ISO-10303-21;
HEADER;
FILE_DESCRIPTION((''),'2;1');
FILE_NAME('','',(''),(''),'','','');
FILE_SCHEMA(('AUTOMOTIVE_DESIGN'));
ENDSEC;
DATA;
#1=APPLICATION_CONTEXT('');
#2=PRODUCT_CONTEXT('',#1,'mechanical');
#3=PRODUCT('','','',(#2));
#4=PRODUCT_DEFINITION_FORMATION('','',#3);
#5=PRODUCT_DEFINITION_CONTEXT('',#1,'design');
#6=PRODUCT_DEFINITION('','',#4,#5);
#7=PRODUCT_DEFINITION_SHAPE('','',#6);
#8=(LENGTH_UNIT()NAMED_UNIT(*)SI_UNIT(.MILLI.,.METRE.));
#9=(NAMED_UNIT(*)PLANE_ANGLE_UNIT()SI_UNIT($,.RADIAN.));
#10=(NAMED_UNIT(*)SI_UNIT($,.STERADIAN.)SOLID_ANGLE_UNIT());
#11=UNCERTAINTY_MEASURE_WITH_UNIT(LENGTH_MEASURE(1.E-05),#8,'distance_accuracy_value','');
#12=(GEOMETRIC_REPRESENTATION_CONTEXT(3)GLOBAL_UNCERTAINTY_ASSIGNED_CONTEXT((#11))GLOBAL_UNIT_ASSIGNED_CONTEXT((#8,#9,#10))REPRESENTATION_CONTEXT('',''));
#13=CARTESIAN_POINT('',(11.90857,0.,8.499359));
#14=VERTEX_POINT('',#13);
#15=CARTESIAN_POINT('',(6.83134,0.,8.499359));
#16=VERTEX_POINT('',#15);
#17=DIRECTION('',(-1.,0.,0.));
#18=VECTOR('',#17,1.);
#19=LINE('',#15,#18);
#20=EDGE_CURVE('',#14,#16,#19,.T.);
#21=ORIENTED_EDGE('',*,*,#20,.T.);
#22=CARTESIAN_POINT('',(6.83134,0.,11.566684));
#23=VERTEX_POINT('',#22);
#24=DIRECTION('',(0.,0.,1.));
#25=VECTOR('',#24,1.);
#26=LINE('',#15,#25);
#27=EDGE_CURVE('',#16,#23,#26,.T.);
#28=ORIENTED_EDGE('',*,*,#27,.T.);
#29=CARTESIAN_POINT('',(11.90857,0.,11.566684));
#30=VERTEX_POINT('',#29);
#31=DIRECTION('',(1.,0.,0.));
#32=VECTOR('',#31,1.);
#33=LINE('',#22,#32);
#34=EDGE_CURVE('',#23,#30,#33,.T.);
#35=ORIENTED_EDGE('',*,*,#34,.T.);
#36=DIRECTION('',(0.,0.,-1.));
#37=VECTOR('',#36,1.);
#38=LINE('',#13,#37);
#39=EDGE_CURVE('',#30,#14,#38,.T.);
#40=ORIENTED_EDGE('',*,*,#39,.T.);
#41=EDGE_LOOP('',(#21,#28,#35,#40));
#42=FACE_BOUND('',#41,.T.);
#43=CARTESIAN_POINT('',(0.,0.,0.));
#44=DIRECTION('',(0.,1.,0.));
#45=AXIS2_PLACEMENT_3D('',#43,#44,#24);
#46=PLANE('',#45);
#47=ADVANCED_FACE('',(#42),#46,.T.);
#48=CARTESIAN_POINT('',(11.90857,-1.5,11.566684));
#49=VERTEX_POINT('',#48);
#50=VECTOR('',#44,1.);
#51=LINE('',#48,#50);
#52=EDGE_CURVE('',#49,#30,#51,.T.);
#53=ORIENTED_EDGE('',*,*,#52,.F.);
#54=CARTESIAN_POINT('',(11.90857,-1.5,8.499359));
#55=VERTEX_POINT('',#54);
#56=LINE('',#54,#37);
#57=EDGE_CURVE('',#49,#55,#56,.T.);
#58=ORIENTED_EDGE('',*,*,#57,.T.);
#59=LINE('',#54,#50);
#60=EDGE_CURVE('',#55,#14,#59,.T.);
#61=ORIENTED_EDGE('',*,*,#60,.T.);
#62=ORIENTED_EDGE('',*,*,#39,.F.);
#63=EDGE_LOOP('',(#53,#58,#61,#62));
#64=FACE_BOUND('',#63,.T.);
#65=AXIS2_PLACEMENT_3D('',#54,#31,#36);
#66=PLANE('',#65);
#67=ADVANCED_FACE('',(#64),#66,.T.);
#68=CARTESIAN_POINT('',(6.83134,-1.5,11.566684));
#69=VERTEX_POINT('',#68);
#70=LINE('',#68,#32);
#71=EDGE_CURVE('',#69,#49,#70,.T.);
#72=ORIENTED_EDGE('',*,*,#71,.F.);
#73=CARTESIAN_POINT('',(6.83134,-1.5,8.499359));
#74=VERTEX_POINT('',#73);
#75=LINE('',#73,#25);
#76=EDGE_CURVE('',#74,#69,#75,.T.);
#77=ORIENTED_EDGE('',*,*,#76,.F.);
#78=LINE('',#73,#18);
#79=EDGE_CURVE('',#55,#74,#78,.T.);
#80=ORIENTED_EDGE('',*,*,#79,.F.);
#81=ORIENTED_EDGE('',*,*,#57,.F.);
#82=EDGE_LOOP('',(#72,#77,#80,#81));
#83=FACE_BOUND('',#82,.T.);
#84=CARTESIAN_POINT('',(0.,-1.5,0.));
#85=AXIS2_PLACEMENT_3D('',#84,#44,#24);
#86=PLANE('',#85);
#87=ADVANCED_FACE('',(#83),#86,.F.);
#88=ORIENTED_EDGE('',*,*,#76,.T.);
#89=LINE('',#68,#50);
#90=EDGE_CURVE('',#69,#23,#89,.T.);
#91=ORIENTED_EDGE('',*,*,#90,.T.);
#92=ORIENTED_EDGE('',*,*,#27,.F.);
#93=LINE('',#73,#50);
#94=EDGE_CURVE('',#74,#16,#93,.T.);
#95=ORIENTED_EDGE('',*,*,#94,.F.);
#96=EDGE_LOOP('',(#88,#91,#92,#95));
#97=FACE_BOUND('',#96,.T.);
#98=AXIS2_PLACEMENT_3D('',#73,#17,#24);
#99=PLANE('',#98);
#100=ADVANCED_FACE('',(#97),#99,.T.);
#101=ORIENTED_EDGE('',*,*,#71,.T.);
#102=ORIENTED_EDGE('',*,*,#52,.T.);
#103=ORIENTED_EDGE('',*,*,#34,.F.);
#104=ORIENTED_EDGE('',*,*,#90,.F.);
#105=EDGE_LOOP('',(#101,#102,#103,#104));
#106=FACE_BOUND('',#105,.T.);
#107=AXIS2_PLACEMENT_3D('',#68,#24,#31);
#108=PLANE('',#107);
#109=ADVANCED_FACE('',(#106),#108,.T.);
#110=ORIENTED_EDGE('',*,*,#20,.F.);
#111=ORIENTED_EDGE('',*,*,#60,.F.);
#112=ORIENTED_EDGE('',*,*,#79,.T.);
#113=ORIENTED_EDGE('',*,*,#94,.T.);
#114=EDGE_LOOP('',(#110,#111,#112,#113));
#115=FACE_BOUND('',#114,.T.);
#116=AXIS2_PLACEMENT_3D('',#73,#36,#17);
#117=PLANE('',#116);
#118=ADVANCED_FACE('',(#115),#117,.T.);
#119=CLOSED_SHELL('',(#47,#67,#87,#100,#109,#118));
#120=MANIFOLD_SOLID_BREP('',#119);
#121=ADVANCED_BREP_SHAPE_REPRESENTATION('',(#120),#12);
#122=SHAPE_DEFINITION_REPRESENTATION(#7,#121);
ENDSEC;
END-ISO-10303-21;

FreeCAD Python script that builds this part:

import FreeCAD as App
import Part
import Sketcher

V = App.Vector
Q = App.Units.Quantity

doc = App.newDocument("Part")
body = doc.addObject("PartDesign::Body", "Body")

sketch1 = doc.addObject("Sketcher::SketchObject", "Sketch")
body.addObject(sketch1)
sketch1.AttachmentSupport = (doc.XZ_Plane, [""])
sketch1.MapMode = "FlatFace"
sketch1.addGeometry([
    Part.LineSegment(V(0, 0, 0), V(0, 13, 0)),
    Part.LineSegment(V(0, 13, 0), V(18, 13, 0)),
    Part.LineSegment(V(18, 13, 0), V(18, 0, 0)),
    Part.LineSegment(V(18, 0, 0), V(0, 0, 0)),
    Part.Circle(V(2.6, 10.4, 0), V(0, 0, 1), 1.5),
    Part.Circle(V(1.4, 1.4, 0), V(0, 0, 1), 0.5),
    Part.Circle(V(3.9, 1.4, 0), V(0, 0, 1), 0.5),
    Part.Circle(V(6.5, 1.4, 0), V(0, 0, 1), 0.5),
    Part.Circle(V(9, 1.4, 0), V(0, 0, 1), 0.5),
    Part.Circle(V(11.5, 1.4, 0), V(0, 0, 1), 0.5),
    Part.Circle(V(14.1, 1.4, 0), V(0, 0, 1), 0.5),
    Part.Circle(V(16.6, 1.4, 0), V(0, 0, 1), 0.5),
], False)
sketch1.addConstraint([
    Sketcher.Constraint("Coincident", 0, 2, 1, 1),
    Sketcher.Constraint("Coincident", 1, 2, 2, 1),
    Sketcher.Constraint("Coincident", 2, 2, 3, 1),
    Sketcher.Constraint("Coincident", 3, 2, 0, 1),
    Sketcher.Constraint("Vertical", 0),
    Sketcher.Constraint("Horizontal", 1),
    Sketcher.Constraint("Vertical", 2),
    Sketcher.Constraint("Horizontal", 3),
    Sketcher.Constraint("Coincident", 3, 2, -1, 1),
    Sketcher.Constraint("Equal", 5, 6),
    Sketcher.Constraint("Equal", 6, 7),
    Sketcher.Constraint("Equal", 7, 8),
    Sketcher.Constraint("Equal", 8, 9),
    Sketcher.Constraint("Equal", 9, 10),
    Sketcher.Constraint("Equal", 10, 11),
    Sketcher.Constraint("Horizontal", 5, 3, 6, 3),
    Sketcher.Constraint("Horizontal", 6, 3, 7, 3),
    Sketcher.Constraint("Horizontal", 7, 3, 8, 3),
    Sketcher.Constraint("Horizontal", 8, 3, 9, 3),
    Sketcher.Constraint("Horizontal", 9, 3, 10, 3),
    Sketcher.Constraint("Horizontal", 10, 3, 11, 3),
    Sketcher.Constraint("Diameter", 4, Q("3 mm")),
    Sketcher.Constraint("Diameter", 5, Q("1 mm")),
    Sketcher.Constraint("DistanceX", 1, 1, 1, 2, Q("18 mm")),
    Sketcher.Constraint("DistanceY", 0, 1, 0, 2, Q("13 mm")),
    Sketcher.Constraint("DistanceX", -1, 1, 8, 3, Q("9 mm")),
    Sketcher.Constraint("DistanceX", 5, 3, 10, 3, Q("12.7 mm")),
    Sketcher.Constraint("DistanceX", 6, 3, 11, 3, Q("12.7 mm")),
    Sketcher.Constraint("DistanceX", -1, 1, 4, 3, Q("2.63 mm")),
    Sketcher.Constraint("DistanceY", -1, 1, 4, 3, Q("10.37 mm")),
    Sketcher.Constraint("DistanceX", -1, 1, 5, 3, Q("1.38 mm")),
    Sketcher.Constraint("DistanceY", -1, 1, 5, 3, Q("1.38 mm")),
    Sketcher.Constraint("DistanceX", -1, 1, 6, 3, Q("3.92 mm")),
    Sketcher.Constraint("DistanceX", -1, 1, 7, 3, Q("6.46 mm")),
    Sketcher.Constraint("DistanceX", -1, 1, 9, 3, Q("11.54 mm")),
])
pad1 = doc.addObject("PartDesign::Pad", "Pad")
body.addObject(pad1)
pad1.Profile = sketch1
pad1.Length = 1.5

sketch2 = doc.addObject("Sketcher::SketchObject", "Sketch001")
body.addObject(sketch2)
sketch2.AttachmentSupport = (doc.XZ_Plane, [""])
sketch2.MapMode = "FlatFace"
sketch2.addGeometry([
    Part.LineSegment(V(0, 0, 0), V(0, 13, 0)),
    Part.LineSegment(V(0, 13, 0), V(18, 13, 0)),
    Part.LineSegment(V(18, 13, 0), V(18, 0, 0)),
    Part.LineSegment(V(18, 0, 0), V(0, 0, 0)),
    Part.LineSegment(V(11.9, 11.6, 0), V(6.8, 11.6, 0)),
    Part.LineSegment(V(6.8, 11.6, 0), V(6.8, 8.5, 0)),
    Part.LineSegment(V(6.8, 8.5, 0), V(11.9, 8.5, 0)),
    Part.LineSegment(V(11.9, 8.5, 0), V(11.9, 11.6, 0)),
], False)
sketch2.addConstraint([
    Sketcher.Constraint("Coincident", 0, 2, 1, 1),
    Sketcher.Constraint("Coincident", 1, 2, 2, 1),
    Sketcher.Constraint("Coincident", 2, 2, 3, 1),
    Sketcher.Constraint("Coincident", 3, 2, 0, 1),
    Sketcher.Constraint("Coincident", 4, 2, 5, 1),
    Sketcher.Constraint("Coincident", 5, 2, 6, 1),
    Sketcher.Constraint("Coincident", 6, 2, 7, 1),
    Sketcher.Constraint("Coincident", 7, 2, 4, 1),
    Sketcher.Constraint("Vertical", 0),
    Sketcher.Constraint("Horizontal", 1),
    Sketcher.Constraint("Vertical", 2),
    Sketcher.Constraint("Horizontal", 3),
    Sketcher.Constraint("Horizontal", 4),
    Sketcher.Constraint("Vertical", 5),
    Sketcher.Constraint("Horizontal", 6),
    Sketcher.Constraint("Vertical", 7),
    Sketcher.Constraint("Coincident", 3, 2, -1, 1),
    Sketcher.Constraint("DistanceX", 1, 1, 1, 2, Q("18 mm")),
    Sketcher.Constraint("DistanceY", 0, 1, 0, 2, Q("13 mm")),
    Sketcher.Constraint("DistanceX", 4, 2, 4, 1, Q("5.07723 mm")),
    Sketcher.Constraint("DistanceY", 5, 2, 5, 1, Q("3.067325 mm")),
    Sketcher.Constraint("DistanceX", -1, 1, 4, 2, Q("6.83134 mm")),
    Sketcher.Constraint("DistanceY", -1, 1, 5, 2, Q("8.499359 mm")),
])
pocket1 = doc.addObject("PartDesign::Pocket", "Pocket")
body.addObject(pocket1)
pocket1.Profile = sketch2
pocket1.Type = "ThroughAll"
pocket1.Reversed = True

doc.recompute()
